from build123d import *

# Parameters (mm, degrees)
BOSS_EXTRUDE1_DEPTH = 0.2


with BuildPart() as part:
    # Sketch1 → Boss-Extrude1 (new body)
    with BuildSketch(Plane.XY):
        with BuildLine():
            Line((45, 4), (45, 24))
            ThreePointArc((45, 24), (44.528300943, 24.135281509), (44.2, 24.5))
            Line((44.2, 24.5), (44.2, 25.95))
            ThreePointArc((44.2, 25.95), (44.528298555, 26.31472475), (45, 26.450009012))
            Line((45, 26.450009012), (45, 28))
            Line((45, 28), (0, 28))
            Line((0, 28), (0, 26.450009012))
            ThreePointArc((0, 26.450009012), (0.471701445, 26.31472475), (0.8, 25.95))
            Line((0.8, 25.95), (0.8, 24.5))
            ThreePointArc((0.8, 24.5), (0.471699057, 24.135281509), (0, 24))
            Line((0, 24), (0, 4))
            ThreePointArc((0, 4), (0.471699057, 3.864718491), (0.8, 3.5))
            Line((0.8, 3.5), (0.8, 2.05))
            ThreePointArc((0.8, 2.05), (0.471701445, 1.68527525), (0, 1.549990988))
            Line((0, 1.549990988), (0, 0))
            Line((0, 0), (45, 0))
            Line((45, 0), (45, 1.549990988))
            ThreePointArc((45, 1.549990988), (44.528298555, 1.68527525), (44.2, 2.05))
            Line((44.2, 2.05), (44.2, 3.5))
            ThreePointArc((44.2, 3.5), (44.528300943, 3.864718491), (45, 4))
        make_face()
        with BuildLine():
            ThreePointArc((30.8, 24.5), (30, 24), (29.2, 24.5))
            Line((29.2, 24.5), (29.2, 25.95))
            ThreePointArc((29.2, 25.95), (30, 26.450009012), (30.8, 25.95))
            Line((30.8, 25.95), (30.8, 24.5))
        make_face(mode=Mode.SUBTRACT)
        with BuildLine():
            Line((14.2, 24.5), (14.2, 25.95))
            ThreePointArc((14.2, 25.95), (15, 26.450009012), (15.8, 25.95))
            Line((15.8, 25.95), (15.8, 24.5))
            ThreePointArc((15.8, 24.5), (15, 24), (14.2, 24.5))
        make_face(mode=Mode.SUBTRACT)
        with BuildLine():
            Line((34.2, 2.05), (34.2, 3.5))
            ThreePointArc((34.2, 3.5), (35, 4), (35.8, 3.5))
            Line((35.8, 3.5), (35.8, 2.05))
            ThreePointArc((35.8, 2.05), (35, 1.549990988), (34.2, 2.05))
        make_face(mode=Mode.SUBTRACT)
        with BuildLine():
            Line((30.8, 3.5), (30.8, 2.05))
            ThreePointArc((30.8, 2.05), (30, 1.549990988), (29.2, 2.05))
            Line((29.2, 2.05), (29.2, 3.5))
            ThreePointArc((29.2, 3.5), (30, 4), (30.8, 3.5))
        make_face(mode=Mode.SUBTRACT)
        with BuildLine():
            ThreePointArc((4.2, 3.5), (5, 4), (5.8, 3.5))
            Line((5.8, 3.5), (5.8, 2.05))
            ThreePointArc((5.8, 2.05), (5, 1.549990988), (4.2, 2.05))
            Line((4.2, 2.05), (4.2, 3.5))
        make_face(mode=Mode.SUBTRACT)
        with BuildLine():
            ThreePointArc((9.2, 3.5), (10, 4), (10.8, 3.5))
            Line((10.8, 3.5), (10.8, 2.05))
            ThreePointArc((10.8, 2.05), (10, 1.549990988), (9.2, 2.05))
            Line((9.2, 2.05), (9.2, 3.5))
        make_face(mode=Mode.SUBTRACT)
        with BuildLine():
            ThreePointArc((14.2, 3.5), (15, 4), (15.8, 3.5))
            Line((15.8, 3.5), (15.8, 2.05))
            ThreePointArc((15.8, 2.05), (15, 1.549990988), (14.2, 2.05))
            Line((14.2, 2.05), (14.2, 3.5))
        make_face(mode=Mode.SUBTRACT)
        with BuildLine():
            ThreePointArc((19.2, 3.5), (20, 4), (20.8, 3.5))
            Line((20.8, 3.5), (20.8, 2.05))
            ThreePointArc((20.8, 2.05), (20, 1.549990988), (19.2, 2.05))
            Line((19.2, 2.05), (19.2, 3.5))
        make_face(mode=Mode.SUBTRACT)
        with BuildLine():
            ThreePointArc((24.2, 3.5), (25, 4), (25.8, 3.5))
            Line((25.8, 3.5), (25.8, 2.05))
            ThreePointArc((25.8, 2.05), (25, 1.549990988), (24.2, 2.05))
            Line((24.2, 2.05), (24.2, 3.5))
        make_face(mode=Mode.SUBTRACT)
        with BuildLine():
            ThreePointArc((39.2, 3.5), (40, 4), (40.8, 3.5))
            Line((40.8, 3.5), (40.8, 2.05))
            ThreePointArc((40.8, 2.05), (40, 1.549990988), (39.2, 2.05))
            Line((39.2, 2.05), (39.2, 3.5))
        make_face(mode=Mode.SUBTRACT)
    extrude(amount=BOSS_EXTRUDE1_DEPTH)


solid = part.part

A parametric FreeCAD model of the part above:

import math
import FreeCAD as App
import Part
import Sketcher

V = App.Vector
Q = App.Units.Quantity

doc = App.newDocument("Part")
params = doc.addObject("Spreadsheet::Sheet", "Params")
for row, (alias, value) in enumerate([
    ("sketch1_width", "45 mm"),
    ("sketch1_height", "20 mm"),
    ("sketch1_radius", "0.89 mm"),
    ("sketch1_height2", "1.45 mm"),
    ("pad1_length", "0.2 mm"),
], start=1):
    params.set(f"A{row}", alias)
    params.set(f"B{row}", "=" + value)
    params.setAlias(f"B{row}", alias)

body = doc.addObject("PartDesign::Body", "Body")

sketch1 = body.newObject("Sketcher::SketchObject", "Sketch")
sketch1.AttachmentSupport = (doc.getObject("XY_Plane"), [""])
sketch1.MapMode = "FlatFace"
sketch1.addGeometry([
    Part.LineSegment(V(45, 4, 0), V(45, 24, 0)),
    Part.ArcOfCircle(Part.Circle(V(45, 24.89, 0), V(0, 0, 1), 0.89), math.radians(-154.010767), math.radians(-90)),
    Part.LineSegment(V(44.2, 24.5, 0), V(44.2, 25.95, 0)),
    Part.ArcOfCircle(Part.Circle(V(45, 25.560016, 0), V(0, 0, 1), 0.889993), math.radians(90), math.radians(154.011695)),
    Part.LineSegment(V(45, 26.450009, 0), V(45, 28, 0)),
    Part.LineSegment(V(45, 28, 0), V(0, 28, 0)),
    Part.LineSegment(V(0, 28, 0), V(0, 26.450009, 0)),
    Part.ArcOfCircle(Part.Circle(V(0, 25.560016, 0), V(0, 0, 1), 0.889993), math.radians(25.988305), math.radians(90)),
    Part.LineSegment(V(0.8, 25.95, 0), V(0.8, 24.5, 0)),
    Part.ArcOfCircle(Part.Circle(V(0, 24.89, 0), V(0, 0, 1), 0.89), math.radians(-90), math.radians(-25.989233)),
    Part.LineSegment(V(0, 24, 0), V(0, 4, 0)),
    Part.ArcOfCircle(Part.Circle(V(0, 3.11, 0), V(0, 0, 1), 0.89), math.radians(25.989233), math.radians(90)),
    Part.LineSegment(V(0.8, 3.5, 0), V(0.8, 2.05, 0)),
    Part.ArcOfCircle(Part.Circle(V(0, 2.439984, 0), V(0, 0, 1), 0.889993), math.radians(-90), math.radians(-25.988305)),
    Part.LineSegment(V(0, 1.549991, 0), V(0, 0, 0)),
    Part.LineSegment(V(0, 0, 0), V(45, 0, 0)),
    Part.LineSegment(V(45, 0, 0), V(45, 1.549991, 0)),
    Part.ArcOfCircle(Part.Circle(V(45, 2.439984, 0), V(0, 0, 1), 0.889993), math.radians(-154.011695), math.radians(-90)),
    Part.LineSegment(V(44.2, 2.05, 0), V(44.2, 3.5, 0)),
    Part.ArcOfCircle(Part.Circle(V(45, 3.11, 0), V(0, 0, 1), 0.89), math.radians(90), math.radians(154.010767)),
    Part.LineSegment(V(4.2, 2.05, 0), V(4.2, 3.5, 0)),
    Part.ArcOfCircle(Part.Circle(V(5, 3.11, 0), V(0, 0, 1), 0.89), math.radians(25.989234), math.radians(154.010766)),
    Part.LineSegment(V(5.8, 3.5, 0), V(5.8, 2.05, 0)),
    Part.ArcOfCircle(Part.Circle(V(5, 2.439984, 0), V(0, 0, 1), 0.889993), math.radians(-154.011695), math.radians(-25.988305)),
    Part.LineSegment(V(9.2, 2.05, 0), V(9.2, 3.5, 0)),
    Part.ArcOfCircle(Part.Circle(V(10, 3.11, 0), V(0, 0, 1), 0.89), math.radians(25.989234), math.radians(154.010766)),
    Part.LineSegment(V(10.8, 3.5, 0), V(10.8, 2.05, 0)),
    Part.ArcOfCircle(Part.Circle(V(10, 2.439984, 0), V(0, 0, 1), 0.889993), math.radians(-154.011695), math.radians(-25.988305)),
    Part.LineSegment(V(14.2, 2.05, 0), V(14.2, 3.5, 0)),
    Part.ArcOfCircle(Part.Circle(V(15, 3.11, 0), V(0, 0, 1), 0.89), math.radians(25.989234), math.radians(154.010766)),
    Part.LineSegment(V(15.8, 3.5, 0), V(15.8, 2.05, 0)),
    Part.ArcOfCircle(Part.Circle(V(15, 2.439984, 0), V(0, 0, 1), 0.889993), math.radians(-154.011695), math.radians(-25.988305)),
    Part.LineSegment(V(19.2, 2.05, 0), V(19.2, 3.5, 0)),
    Part.ArcOfCircle(Part.Circle(V(20, 3.11, 0), V(0, 0, 1), 0.89), math.radians(25.989234), math.radians(154.010766)),
    Part.LineSegment(V(20.8, 3.5, 0), V(20.8, 2.05, 0)),
    Part.ArcOfCircle(Part.Circle(V(20, 2.439984, 0), V(0, 0, 1), 0.889993), math.radians(-154.011695), math.radians(-25.988305)),
    Part.LineSegment(V(24.2, 2.05, 0), V(24.2, 3.5, 0)),
    Part.ArcOfCircle(Part.Circle(V(25, 3.11, 0), V(0, 0, 1), 0.89), math.radians(25.989234), math.radians(154.010766)),
    Part.LineSegment(V(25.8, 3.5, 0), V(25.8, 2.05, 0)),
    Part.ArcOfCircle(Part.Circle(V(25, 2.439984, 0), V(0, 0, 1), 0.889993), math.radians(-154.011695), math.radians(-25.988305)),
    Part.ArcOfCircle(Part.Circle(V(30, 3.11, 0), V(0, 0, 1), 0.89), math.radians(25.989234), math.radians(154.010766)),
    Part.LineSegment(V(30.8, 3.5, 0), V(30.8, 2.05, 0)),
    Part.ArcOfCircle(Part.Circle(V(30, 2.439984, 0), V(0, 0, 1), 0.889993), math.radians(-154.011695), math.radians(-25.988305)),
    Part.LineSegment(V(29.2, 2.05, 0), V(29.2, 3.5, 0)),
    Part.ArcOfCircle(Part.Circle(V(35, 2.439984, 0), V(0, 0, 1), 0.889993), math.radians(-154.011695), math.radians(-25.988305)),
    Part.LineSegment(V(34.2, 2.05, 0), V(34.2, 3.5, 0)),
    Part.ArcOfCircle(Part.Circle(V(35, 3.11, 0), V(0, 0, 1), 0.89), math.radians(25.989234), math.radians(154.010766)),
    Part.LineSegment(V(35.8, 3.5, 0), V(35.8, 2.05, 0)),
    Part.LineSegment(V(39.2, 2.05, 0), V(39.2, 3.5, 0)),
    Part.ArcOfCircle(Part.Circle(V(40, 3.11, 0), V(0, 0, 1), 0.89), math.radians(25.989234), math.radians(154.010766)),
    Part.LineSegment(V(40.8, 3.5, 0), V(40.8, 2.05, 0)),
    Part.ArcOfCircle(Part.Circle(V(40, 2.439984, 0), V(0, 0, 1), 0.889993), math.radians(-154.011695), math.radians(-25.988305)),
    Part.ArcOfCircle(Part.Circle(V(15, 24.89, 0), V(0, 0, 1), 0.89), math.radians(-154.010766), math.radians(-25.989234)),
    Part.LineSegment(V(14.2, 24.5, 0), V(14.2, 25.95, 0)),
    Part.ArcOfCircle(Part.Circle(V(15, 25.560016, 0), V(0, 0, 1), 0.889993), math.radians(25.988305), math.radians(154.011695)),
    Part.LineSegment(V(15.8, 25.95, 0), V(15.8, 24.5, 0)),
    Part.LineSegment(V(30.8, 25.95, 0), V(30.8, 24.5, 0)),
    Part.ArcOfCircle(Part.Circle(V(30, 24.89, 0), V(0, 0, 1), 0.89), math.radians(-154.010766), math.radians(-25.989234)),
    Part.LineSegment(V(29.2, 24.5, 0), V(29.2, 25.95, 0)),
    Part.ArcOfCircle(Part.Circle(V(30, 25.560016, 0), V(0, 0, 1), 0.889993), math.radians(25.988305), math.radians(154.011695)),
], False)
sketch1.addConstraint([
    Sketcher.Constraint("Coincident", 0, 2, 1, 2),
    Sketcher.Constraint("Coincident", 1, 1, 2, 1),
    Sketcher.Constraint("Coincident", 2, 2, 3, 2),
    Sketcher.Constraint("Coincident", 3, 1, 4, 1),
    Sketcher.Constraint("Coincident", 4, 2, 5, 1),
    Sketcher.Constraint("Coincident", 5, 2, 6, 1),
    Sketcher.Constraint("Coincident", 6, 2, 7, 2),
    Sketcher.Constraint("Coincident", 7, 1, 8, 1),
    Sketcher.Constraint("Coincident", 8, 2, 9, 2),
    Sketcher.Constraint("Coincident", 9, 1, 10, 1),
    Sketcher.Constraint("Coincident", 10, 2, 11, 2),
    Sketcher.Constraint("Coincident", 11, 1, 12, 1),
    Sketcher.Constraint("Coincident", 12, 2, 13, 2),
    Sketcher.Constraint("Coincident", 13, 1, 14, 1),
    Sketcher.Constraint("Coincident", 14, 2, 15, 1),
    Sketcher.Constraint("Coincident", 15, 2, 16, 1),
    Sketcher.Constraint("Coincident", 16, 2, 17, 2),
    Sketcher.Constraint("Coincident", 17, 1, 18, 1),
    Sketcher.Constraint("Coincident", 18, 2, 19, 2),
    Sketcher.Constraint("Coincident", 19, 1, 0, 1),
    Sketcher.Constraint("Coincident", 20, 2, 21, 2),
    Sketcher.Constraint("Coincident", 21, 1, 22, 1),
    Sketcher.Constraint("Coincident", 22, 2, 23, 2),
    Sketcher.Constraint("Coincident", 23, 1, 20, 1),
    Sketcher.Constraint("Coincident", 24, 2, 25, 2),
    Sketcher.Constraint("Coincident", 25, 1, 26, 1),
    Sketcher.Constraint("Coincident", 26, 2, 27, 2),
    Sketcher.Constraint("Coincident", 27, 1, 24, 1),
    Sketcher.Constraint("Coincident", 28, 2, 29, 2),
    Sketcher.Constraint("Coincident", 29, 1, 30, 1),
    Sketcher.Constraint("Coincident", 30, 2, 31, 2),
    Sketcher.Constraint("Coincident", 31, 1, 28, 1),
    Sketcher.Constraint("Coincident", 32, 2, 33, 2),
    Sketcher.Constraint("Coincident", 33, 1, 34, 1),
    Sketcher.Constraint("Coincident", 34, 2, 35, 2),
    Sketcher.Constraint("Coincident", 35, 1, 32, 1),
    Sketcher.Constraint("Coincident", 36, 2, 37, 2),
    Sketcher.Constraint("Coincident", 37, 1, 38, 1),
    Sketcher.Constraint("Coincident", 38, 2, 39, 2),
    Sketcher.Constraint("Coincident", 39, 1, 36, 1),
    Sketcher.Constraint("Coincident", 40, 1, 41, 1),
    Sketcher.Constraint("Coincident", 41, 2, 42, 2),
    Sketcher.Constraint("Coincident", 42, 1, 43, 1),
    Sketcher.Constraint("Coincident", 43, 2, 40, 2),
    Sketcher.Constraint("Coincident", 44, 1, 45, 1),
    Sketcher.Constraint("Coincident", 45, 2, 46, 2),
    Sketcher.Constraint("Coincident", 46, 1, 47, 1),
    Sketcher.Constraint("Coincident", 47, 2, 44, 2),
    Sketcher.Constraint("Coincident", 48, 2, 49, 2),
    Sketcher.Constraint("Coincident", 49, 1, 50, 1),
    Sketcher.Constraint("Coincident", 50, 2, 51, 2),
    Sketcher.Constraint("Coincident", 51, 1, 48, 1),
    Sketcher.Constraint("Coincident", 52, 1, 53, 1),
    Sketcher.Constraint("Coincident", 53, 2, 54, 2),
    Sketcher.Constraint("Coincident", 54, 1, 55, 1),
    Sketcher.Constraint("Coincident", 55, 2, 52, 2),
    Sketcher.Constraint("Coincident", 56, 2, 57, 2),
    Sketcher.Constraint("Coincident", 57, 1, 58, 1),
    Sketcher.Constraint("Coincident", 58, 2, 59, 2),
    Sketcher.Constraint("Coincident", 59, 1, 56, 1),
    Sketcher.Constraint("Vertical", 0),
    Sketcher.Constraint("Vertical", 2),
    Sketcher.Constraint("Vertical", 4),
    Sketcher.Constraint("Horizontal", 5),
    Sketcher.Constraint("Vertical", 6),
    Sketcher.Constraint("Vertical", 8),
    Sketcher.Constraint("Vertical", 10),
    Sketcher.Constraint("Vertical", 12),
    Sketcher.Constraint("Vertical", 14),
    Sketcher.Constraint("Horizontal", 15),
    Sketcher.Constraint("Vertical", 16),
    Sketcher.Constraint("Vertical", 18),
    Sketcher.Constraint("Vertical", 20),
    Sketcher.Constraint("Vertical", 22),
    Sketcher.Constraint("Vertical", 24),
    Sketcher.Constraint("Vertical", 26),
    Sketcher.Constraint("Vertical", 28),
    Sketcher.Constraint("Vertical", 30),
    Sketcher.Constraint("Vertical", 32),
    Sketcher.Constraint("Vertical", 34),
    Sketcher.Constraint("Vertical", 36),
    Sketcher.Constraint("Vertical", 38),
    Sketcher.Constraint("Vertical", 41),
    Sketcher.Constraint("Vertical", 43),
    Sketcher.Constraint("Vertical", 45),
    Sketcher.Constraint("Vertical", 47),
    Sketcher.Constraint("Vertical", 48),
    Sketcher.Constraint("Vertical", 50),
    Sketcher.Constraint("Vertical", 53),
    Sketcher.Constraint("Vertical", 55),
    Sketcher.Constraint("Vertical", 56),
    Sketcher.Constraint("Vertical", 58),
    Sketcher.Constraint("Coincident", 14, 2, -1, 1),
    Sketcher.Constraint("Equal", 3, 7),
    Sketcher.Constraint("Equal", 1, 9),
    Sketcher.Constraint("Equal", 9, 11),
    Sketcher.Constraint("Equal", 7, 13),
    Sketcher.Constraint("Equal", 13, 17),
    Sketcher.Constraint("Equal", 11, 19),
    Sketcher.Constraint("Equal", 19, 21),
    Sketcher.Constraint("Equal", 17, 23),
    Sketcher.Constraint("Equal", 21, 25),
    Sketcher.Constraint("Equal", 23, 27),
    Sketcher.Constraint("Equal", 25, 29),
    Sketcher.Constraint("Equal", 27, 31),
    Sketcher.Constraint("Equal", 29, 33),
    Sketcher.Constraint("Equal", 31, 35),
    Sketcher.Constraint("Equal", 33, 37),
    Sketcher.Constraint("Equal", 35, 39),
    Sketcher.Constraint("Equal", 37, 40),
    Sketcher.Constraint("Equal", 39, 42),
    Sketcher.Constraint("Equal", 42, 44),
    Sketcher.Constraint("Equal", 40, 46),
    Sketcher.Constraint("Equal", 46, 49),
    Sketcher.Constraint("Equal", 44, 51),
    Sketcher.Constraint("Equal", 49, 52),
    Sketcher.Constraint("Equal", 51, 54),
    Sketcher.Constraint("Equal", 52, 57),
    Sketcher.Constraint("Equal", 54, 59),
    Sketcher.Constraint("PointOnObject", 7, 3, -2),
    Sketcher.Constraint("PointOnObject", 9, 3, -2),
    Sketcher.Constraint("PointOnObject", 11, 3, -2),
    Sketcher.Constraint("PointOnObject", 13, 3, -2),
    Sketcher.Constraint("PointOnObject", 5, 2, -2),
    Sketcher.Constraint("PointOnObject", 9, 1, -2),
    Sketcher.Constraint("Horizontal", 3, 3, 7, 3),
    Sketcher.Constraint("Horizontal", 1, 3, 9, 3),
    Sketcher.Constraint("Horizontal", 13, 3, 17, 3),
    Sketcher.Constraint("Horizontal", 11, 3, 19, 3),
    Sketcher.Constraint("Horizontal", 19, 3, 21, 3),
    Sketcher.Constraint("Horizontal", 17, 3, 23, 3),
    Sketcher.Constraint("Horizontal", 21, 3, 25, 3),
    Sketcher.Constraint("Horizontal", 23, 3, 27, 3),
    Sketcher.Constraint("Horizontal", 25, 3, 29, 3),
    Sketcher.Constraint("Horizontal", 27, 3, 31, 3),
    Sketcher.Constraint("Horizontal", 29, 3, 33, 3),
    Sketcher.Constraint("Horizontal", 31, 3, 35, 3),
    Sketcher.Constraint("Horizontal", 33, 3, 37, 3),
    Sketcher.Constraint("Horizontal", 35, 3, 39, 3),
    Sketcher.Constraint("Horizontal", 37, 3, 40, 3),
    Sketcher.Constraint("Horizontal", 39, 3, 42, 3),
    Sketcher.Constraint("Horizontal", 42, 3, 44, 3),
    Sketcher.Constraint("Horizontal", 40, 3, 46, 3),
    Sketcher.Constraint("Horizontal", 46, 3, 49, 3),
    Sketcher.Constraint("Horizontal", 44, 3, 51, 3),
    Sketcher.Constraint("Horizontal", 9, 3, 52, 3),
    Sketcher.Constraint("Horizontal", 7, 3, 54, 3),
    Sketcher.Constraint("Horizontal", 52, 3, 57, 3),
    Sketcher.Constraint("Horizontal", 54, 3, 59, 3),
    Sketcher.Constraint("Horizontal", 2, 2, 7, 1),
    Sketcher.Constraint("Horizontal", 1, 1, 8, 2),
    Sketcher.Constraint("Horizontal", 12, 2, 17, 1),
    Sketcher.Constraint("Horizontal", 11, 1, 18, 2),
    Sketcher.Constraint("Horizontal", 18, 2, 20, 2),
    Sketcher.Constraint("Horizontal", 20, 2, 21, 1),
    Sketcher.Constraint("Horizontal", 17, 1, 22, 2),
    Sketcher.Constraint("Horizontal", 21, 1, 24, 2),
    Sketcher.Constraint("Horizontal", 24, 2, 25, 1),
    Sketcher.Constraint("Horizontal", 23, 1, 26, 2),
    Sketcher.Constraint("Horizontal", 25, 1, 28, 2),
    Sketcher.Constraint("Horizontal", 28, 2, 29, 1),
    Sketcher.Constraint("Horizontal", 27, 1, 30, 2),
    Sketcher.Constraint("Horizontal", 29, 1, 32, 2),
    Sketcher.Constraint("Horizontal", 32, 2, 33, 1),
    Sketcher.Constraint("Horizontal", 31, 1, 34, 2),
    Sketcher.Constraint("Horizontal", 33, 1, 36, 2),
    Sketcher.Constraint("Horizontal", 36, 2, 37, 1),
    Sketcher.Constraint("Horizontal", 35, 1, 38, 2),
    Sketcher.Constraint("Horizontal", 37, 1, 40, 1),
    Sketcher.Constraint("Horizontal", 39, 1, 41, 2),
    Sketcher.Constraint("Horizontal", 41, 2, 42, 1),
    Sketcher.Constraint("Horizontal", 42, 1, 44, 1),
    Sketcher.Constraint("Horizontal", 43, 2, 45, 2),
    Sketcher.Constraint("Horizontal", 45, 2, 46, 1),
    Sketcher.Constraint("Horizontal", 46, 1, 48, 2),
    Sketcher.Constraint("Horizontal", 48, 2, 49, 1),
    Sketcher.Constraint("Horizontal", 47, 2, 50, 2),
    Sketcher.Constraint("Horizontal", 8, 2, 52, 1),
    Sketcher.Constraint("Horizontal", 7, 1, 53, 2),
    Sketcher.Constraint("Horizontal", 53, 2, 54, 1),
    Sketcher.Constraint("Horizontal", 55, 2, 56, 2),
    Sketcher.Constraint("Horizontal", 56, 2, 57, 1),
    Sketcher.Constraint("Horizontal", 54, 1, 58, 2),
    Sketcher.Constraint("Vertical", 3, 3, 17, 3),
    Sketcher.Constraint("Vertical", 31, 3, 52, 3),
    Sketcher.Constraint("Vertical", 42, 3, 57, 3),
    Sketcher.Constraint("Vertical", 19, 3, 0, 2),
    Sketcher.Constraint("Vertical", 0, 2, 3, 1),
    Sketcher.Constraint("Vertical", 8, 2, 11, 1),
    Sketcher.Constraint("Vertical", 4, 2, 15, 2),
    Sketcher.Constraint("Equal", 8, 12),
    Sketcher.Constraint("Equal", 6, 14),
    Sketcher.Constraint("DistanceX", 5, 2, 5, 1, Q("45 mm")),
    Sketcher.Constraint("DistanceY", 0, 1, 0, 2, Q("20 mm")),
    Sketcher.Constraint("Radius", 1, Q("0.89 mm")),
    Sketcher.Constraint("DistanceX", -1, 1, 21, 3, Q("5 mm")),
    Sketcher.Constraint("DistanceX", -1, 1, 25, 3, Q("10 mm")),
    Sketcher.Constraint("DistanceX", -1, 1, 29, 3, Q("15 mm")),
    Sketcher.Constraint("DistanceX", -1, 1, 33, 3, Q("20 mm")),
    Sketcher.Constraint("DistanceX", -1, 1, 37, 3, Q("25 mm")),
    Sketcher.Constraint("DistanceX", -1, 1, 40, 3, Q("30 mm")),
    Sketcher.Constraint("DistanceX", -1, 1, 44, 3, Q("35 mm")),
    Sketcher.Constraint("DistanceX", -1, 1, 49, 3, Q("40 mm")),
    Sketcher.Constraint("DistanceY", -1, 1, 0, 2, Q("24 mm")),
    Sketcher.Constraint("DistanceY", 2, 1, 2, 2, Q("1.45 mm")),
    Sketcher.Constraint("DistanceX", -1, 1, 1, 1, Q("44.2 mm")),
    Sketcher.Constraint("Radius", 3, Q("0.889993 mm")),
])
sketch1.setExpression("Constraints[192]", "Params.sketch1_width")
sketch1.setExpression("Constraints[193]", "Params.sketch1_height")
sketch1.setExpression("Constraints[194]", "Params.sketch1_radius")
sketch1.setExpression("Constraints[204]", "Params.sketch1_height2")
pad1 = body.newObject("PartDesign::Pad", "Pad")
pad1.Profile = sketch1
pad1.setExpression("Length", "Params.pad1_length")

doc.recompute()
